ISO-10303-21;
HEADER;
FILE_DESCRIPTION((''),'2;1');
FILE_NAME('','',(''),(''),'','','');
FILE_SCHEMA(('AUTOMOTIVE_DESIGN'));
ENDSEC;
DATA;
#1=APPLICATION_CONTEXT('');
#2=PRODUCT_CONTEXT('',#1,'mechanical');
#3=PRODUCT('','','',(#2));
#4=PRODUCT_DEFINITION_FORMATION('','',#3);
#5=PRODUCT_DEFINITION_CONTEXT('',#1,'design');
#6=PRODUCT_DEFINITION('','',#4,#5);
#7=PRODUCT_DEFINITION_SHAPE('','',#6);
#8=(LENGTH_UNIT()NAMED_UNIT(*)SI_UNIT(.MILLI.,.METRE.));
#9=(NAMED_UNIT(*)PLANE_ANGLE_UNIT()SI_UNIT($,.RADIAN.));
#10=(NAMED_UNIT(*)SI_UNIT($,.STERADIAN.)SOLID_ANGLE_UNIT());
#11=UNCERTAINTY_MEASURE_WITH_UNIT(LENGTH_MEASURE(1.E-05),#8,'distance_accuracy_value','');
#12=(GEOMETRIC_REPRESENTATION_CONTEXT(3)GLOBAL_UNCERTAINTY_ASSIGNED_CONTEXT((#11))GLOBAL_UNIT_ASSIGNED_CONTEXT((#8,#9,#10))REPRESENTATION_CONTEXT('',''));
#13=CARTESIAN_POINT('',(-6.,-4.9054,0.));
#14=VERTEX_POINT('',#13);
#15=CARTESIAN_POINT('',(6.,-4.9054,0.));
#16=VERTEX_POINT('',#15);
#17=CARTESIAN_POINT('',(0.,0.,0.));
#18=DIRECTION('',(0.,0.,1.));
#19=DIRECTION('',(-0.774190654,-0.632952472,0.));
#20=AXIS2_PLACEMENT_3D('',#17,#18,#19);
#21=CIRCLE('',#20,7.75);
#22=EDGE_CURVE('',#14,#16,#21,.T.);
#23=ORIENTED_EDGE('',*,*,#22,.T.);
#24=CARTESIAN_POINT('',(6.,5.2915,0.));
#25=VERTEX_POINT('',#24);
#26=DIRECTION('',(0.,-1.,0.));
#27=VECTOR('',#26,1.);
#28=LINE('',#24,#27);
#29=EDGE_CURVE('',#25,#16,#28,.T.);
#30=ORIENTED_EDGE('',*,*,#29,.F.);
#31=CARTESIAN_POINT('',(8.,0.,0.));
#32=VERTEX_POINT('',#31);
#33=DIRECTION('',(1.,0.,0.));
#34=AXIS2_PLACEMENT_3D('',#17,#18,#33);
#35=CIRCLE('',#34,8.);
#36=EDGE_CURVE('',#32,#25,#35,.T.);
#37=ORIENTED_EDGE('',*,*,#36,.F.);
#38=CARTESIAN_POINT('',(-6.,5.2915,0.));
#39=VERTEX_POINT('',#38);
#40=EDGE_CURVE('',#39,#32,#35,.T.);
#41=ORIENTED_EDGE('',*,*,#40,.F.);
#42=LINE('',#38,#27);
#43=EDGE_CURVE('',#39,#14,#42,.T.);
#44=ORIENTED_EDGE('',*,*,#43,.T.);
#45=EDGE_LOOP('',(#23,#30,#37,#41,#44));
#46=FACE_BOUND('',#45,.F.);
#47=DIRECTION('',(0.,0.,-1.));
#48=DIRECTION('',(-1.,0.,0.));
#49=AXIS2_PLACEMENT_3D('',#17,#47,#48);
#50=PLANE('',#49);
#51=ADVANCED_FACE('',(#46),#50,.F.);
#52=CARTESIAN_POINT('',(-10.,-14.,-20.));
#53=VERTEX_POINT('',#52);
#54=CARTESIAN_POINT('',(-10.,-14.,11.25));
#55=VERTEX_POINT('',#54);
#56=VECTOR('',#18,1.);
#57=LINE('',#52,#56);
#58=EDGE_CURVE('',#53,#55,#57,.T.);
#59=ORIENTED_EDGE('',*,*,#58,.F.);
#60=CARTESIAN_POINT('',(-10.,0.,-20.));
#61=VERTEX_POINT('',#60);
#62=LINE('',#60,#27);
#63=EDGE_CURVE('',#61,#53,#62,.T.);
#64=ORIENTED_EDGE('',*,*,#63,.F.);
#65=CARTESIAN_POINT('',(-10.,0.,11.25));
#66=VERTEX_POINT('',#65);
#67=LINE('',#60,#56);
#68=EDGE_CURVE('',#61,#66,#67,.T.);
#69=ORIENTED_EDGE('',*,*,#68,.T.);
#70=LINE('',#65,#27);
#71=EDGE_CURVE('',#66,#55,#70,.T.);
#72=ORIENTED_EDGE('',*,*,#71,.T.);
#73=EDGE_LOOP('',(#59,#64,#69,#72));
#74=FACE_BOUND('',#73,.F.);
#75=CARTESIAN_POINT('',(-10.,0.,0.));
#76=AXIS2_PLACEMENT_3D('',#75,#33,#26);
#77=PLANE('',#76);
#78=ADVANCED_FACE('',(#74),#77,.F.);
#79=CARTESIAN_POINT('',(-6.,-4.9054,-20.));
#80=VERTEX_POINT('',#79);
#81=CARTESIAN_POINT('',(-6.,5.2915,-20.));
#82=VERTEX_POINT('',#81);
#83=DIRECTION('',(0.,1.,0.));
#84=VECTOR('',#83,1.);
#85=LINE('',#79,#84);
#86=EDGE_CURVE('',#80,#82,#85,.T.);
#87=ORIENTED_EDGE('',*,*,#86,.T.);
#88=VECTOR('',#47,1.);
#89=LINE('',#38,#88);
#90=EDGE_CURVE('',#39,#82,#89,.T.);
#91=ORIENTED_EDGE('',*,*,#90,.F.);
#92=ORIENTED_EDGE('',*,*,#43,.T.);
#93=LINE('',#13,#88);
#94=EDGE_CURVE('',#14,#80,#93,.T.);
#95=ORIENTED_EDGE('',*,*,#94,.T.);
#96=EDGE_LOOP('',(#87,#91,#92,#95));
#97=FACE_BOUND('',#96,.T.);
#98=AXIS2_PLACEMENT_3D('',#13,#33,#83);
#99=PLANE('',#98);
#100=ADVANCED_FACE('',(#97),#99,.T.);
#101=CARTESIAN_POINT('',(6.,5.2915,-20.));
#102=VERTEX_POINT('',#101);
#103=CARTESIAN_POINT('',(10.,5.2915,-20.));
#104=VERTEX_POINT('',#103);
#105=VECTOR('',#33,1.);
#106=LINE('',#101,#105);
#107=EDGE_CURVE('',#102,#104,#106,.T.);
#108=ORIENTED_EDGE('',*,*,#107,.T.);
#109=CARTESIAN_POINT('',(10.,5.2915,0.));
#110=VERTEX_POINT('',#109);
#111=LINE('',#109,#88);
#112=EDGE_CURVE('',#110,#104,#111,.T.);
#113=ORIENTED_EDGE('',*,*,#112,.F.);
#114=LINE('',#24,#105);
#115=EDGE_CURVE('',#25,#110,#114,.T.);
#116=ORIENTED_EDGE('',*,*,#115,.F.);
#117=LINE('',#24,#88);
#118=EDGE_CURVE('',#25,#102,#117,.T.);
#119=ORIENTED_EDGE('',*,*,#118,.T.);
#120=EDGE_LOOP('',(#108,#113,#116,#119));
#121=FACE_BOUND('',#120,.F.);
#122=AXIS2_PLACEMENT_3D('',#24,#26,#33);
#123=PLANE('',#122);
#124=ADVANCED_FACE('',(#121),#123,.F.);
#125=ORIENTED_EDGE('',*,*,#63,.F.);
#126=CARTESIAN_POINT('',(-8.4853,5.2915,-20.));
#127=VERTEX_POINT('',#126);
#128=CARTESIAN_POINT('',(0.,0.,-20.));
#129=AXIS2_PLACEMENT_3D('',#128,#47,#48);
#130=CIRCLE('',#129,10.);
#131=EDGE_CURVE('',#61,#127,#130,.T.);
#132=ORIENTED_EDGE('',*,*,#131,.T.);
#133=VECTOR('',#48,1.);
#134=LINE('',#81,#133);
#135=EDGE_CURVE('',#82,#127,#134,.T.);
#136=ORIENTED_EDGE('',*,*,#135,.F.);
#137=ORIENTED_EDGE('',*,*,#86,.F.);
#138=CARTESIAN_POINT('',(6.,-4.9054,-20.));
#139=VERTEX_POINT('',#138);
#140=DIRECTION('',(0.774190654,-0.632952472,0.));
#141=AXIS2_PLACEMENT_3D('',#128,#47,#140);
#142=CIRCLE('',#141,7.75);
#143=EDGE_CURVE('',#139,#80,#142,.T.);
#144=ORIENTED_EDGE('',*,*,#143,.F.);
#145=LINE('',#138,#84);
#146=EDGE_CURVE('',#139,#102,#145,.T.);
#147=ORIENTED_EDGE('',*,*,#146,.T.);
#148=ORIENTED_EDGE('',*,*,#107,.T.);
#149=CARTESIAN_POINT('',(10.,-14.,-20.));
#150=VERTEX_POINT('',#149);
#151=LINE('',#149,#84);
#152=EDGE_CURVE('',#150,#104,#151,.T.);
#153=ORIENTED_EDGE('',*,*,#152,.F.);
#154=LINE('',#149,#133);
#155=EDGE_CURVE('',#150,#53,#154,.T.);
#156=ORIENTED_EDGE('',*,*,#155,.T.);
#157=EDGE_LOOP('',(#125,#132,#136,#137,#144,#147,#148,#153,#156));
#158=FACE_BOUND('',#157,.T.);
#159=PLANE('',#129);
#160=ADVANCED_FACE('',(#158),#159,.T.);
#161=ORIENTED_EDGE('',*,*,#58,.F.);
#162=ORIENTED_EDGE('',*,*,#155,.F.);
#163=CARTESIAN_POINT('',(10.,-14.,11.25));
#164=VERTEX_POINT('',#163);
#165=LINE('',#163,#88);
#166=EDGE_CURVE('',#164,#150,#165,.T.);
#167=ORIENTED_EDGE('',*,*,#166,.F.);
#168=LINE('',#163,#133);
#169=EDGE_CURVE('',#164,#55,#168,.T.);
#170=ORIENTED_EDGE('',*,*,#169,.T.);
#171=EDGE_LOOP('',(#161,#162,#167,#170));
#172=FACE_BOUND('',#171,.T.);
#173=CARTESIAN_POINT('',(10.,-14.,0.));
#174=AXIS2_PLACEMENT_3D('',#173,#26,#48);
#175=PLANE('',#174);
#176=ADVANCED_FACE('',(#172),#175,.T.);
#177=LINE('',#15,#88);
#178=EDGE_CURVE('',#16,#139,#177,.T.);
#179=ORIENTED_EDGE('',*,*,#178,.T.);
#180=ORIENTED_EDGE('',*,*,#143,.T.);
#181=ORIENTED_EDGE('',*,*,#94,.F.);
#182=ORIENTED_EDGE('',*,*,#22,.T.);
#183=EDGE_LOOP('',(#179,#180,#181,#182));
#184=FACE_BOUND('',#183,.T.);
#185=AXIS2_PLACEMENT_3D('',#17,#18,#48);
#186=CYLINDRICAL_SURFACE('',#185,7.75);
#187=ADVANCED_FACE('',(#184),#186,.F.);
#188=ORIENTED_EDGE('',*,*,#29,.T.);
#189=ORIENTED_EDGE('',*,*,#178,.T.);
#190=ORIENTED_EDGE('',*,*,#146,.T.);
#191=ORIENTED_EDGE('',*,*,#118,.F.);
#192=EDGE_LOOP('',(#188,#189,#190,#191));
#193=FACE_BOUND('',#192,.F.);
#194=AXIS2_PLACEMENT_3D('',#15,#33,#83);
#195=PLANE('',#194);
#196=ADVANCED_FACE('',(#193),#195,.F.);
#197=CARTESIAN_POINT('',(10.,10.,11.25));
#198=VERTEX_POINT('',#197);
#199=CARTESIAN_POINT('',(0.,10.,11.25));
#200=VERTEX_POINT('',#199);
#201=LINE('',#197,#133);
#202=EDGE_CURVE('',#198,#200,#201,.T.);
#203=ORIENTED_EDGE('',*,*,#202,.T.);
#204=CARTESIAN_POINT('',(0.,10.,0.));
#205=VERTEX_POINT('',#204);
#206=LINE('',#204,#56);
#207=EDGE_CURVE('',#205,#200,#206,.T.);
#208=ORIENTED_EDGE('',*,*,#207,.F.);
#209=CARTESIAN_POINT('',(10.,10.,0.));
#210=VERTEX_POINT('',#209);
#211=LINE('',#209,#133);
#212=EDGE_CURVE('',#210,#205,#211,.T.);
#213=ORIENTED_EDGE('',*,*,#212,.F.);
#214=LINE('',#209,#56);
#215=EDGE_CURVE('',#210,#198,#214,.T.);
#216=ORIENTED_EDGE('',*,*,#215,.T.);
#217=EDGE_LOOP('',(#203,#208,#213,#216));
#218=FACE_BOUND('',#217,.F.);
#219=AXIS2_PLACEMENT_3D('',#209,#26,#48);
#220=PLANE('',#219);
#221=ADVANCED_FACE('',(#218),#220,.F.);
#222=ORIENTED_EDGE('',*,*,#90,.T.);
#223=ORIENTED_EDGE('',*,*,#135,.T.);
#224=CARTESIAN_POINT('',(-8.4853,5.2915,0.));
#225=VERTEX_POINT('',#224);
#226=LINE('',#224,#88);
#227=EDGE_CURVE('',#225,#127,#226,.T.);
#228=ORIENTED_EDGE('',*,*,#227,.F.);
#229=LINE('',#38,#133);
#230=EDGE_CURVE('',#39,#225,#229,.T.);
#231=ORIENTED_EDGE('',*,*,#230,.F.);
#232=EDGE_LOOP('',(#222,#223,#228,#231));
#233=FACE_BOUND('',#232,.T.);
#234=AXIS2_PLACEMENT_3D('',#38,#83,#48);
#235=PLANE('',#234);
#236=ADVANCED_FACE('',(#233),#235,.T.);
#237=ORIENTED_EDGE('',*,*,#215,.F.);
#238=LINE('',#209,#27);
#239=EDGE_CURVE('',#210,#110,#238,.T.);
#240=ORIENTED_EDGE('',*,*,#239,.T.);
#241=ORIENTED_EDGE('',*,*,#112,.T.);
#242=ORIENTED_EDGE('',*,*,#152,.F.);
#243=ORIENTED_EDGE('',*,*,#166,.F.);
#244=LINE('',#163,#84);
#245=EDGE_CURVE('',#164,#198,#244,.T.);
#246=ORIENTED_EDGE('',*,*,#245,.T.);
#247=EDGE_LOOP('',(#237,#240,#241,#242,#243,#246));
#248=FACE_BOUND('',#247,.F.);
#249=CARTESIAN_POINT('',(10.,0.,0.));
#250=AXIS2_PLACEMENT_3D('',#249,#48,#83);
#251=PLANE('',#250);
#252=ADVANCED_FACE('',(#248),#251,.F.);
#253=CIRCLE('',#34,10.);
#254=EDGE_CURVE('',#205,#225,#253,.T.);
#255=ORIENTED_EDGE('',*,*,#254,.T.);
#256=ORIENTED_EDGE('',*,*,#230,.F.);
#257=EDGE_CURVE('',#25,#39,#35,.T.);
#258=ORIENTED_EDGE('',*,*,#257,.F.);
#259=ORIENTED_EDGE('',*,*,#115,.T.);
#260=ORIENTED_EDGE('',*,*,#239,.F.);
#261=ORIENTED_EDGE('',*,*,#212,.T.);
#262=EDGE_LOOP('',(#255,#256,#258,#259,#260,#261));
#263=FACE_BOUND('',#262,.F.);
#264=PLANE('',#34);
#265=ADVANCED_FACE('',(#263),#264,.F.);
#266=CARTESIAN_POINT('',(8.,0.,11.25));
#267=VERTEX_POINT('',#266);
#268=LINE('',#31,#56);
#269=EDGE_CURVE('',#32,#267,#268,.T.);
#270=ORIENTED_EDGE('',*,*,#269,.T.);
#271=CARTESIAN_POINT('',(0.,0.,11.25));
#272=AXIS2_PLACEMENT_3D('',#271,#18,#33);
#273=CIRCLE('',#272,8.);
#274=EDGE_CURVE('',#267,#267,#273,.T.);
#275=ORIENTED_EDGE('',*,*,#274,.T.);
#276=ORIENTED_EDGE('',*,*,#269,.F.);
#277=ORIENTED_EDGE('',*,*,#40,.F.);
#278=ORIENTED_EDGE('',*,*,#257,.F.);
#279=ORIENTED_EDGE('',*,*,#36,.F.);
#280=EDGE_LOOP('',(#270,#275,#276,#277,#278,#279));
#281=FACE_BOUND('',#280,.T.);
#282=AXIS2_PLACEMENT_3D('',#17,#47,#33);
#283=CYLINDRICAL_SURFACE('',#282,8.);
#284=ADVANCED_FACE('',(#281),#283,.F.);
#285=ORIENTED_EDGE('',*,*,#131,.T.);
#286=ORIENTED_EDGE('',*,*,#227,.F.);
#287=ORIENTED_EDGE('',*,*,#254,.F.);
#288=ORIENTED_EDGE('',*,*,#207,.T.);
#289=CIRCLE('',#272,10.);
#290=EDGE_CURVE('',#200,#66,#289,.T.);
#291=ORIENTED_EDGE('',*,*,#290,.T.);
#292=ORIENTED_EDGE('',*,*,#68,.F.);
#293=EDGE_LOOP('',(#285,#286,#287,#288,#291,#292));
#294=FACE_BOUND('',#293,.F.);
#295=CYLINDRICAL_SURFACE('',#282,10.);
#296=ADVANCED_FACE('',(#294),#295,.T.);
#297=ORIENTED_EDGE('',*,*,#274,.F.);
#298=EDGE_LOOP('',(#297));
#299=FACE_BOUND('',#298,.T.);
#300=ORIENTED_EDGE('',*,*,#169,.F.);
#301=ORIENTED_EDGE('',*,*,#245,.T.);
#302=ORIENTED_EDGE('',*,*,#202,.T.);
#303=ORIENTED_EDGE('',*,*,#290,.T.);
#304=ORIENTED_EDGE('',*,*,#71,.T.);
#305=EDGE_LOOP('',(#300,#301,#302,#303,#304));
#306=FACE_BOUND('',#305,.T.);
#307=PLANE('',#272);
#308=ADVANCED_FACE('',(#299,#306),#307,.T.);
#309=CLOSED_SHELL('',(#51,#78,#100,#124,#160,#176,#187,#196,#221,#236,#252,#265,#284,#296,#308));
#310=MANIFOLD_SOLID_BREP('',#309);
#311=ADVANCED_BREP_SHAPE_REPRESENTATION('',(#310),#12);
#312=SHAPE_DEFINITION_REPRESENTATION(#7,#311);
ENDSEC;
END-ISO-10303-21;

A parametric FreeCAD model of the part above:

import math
import FreeCAD as App
import Part
import Sketcher

V = App.Vector
Q = App.Units.Quantity

doc = App.newDocument("Part")
body = doc.addObject("PartDesign::Body", "Body")

sketch1 = body.newObject("Sketcher::SketchObject", "Sketch")
sketch1.AttachmentSupport = (doc.getObject("XY_Plane"), [""])
sketch1.MapMode = "FlatFace"
sketch1.addGeometry([
    Part.ArcOfCircle(Part.Circle(V(0, 0, 0), V(0, 0, 1), 10), math.radians(90), math.radians(180)),
    Part.LineSegment(V(-10, 0, 0), V(-10, -14, 0)),
    Part.LineSegment(V(-10, -14, 0), V(10, -14, 0)),
    Part.LineSegment(V(10, -14, 0), V(10, 10, 0)),
    Part.LineSegment(V(10, 10, 0), V(0, 10, 0)),
    Part.Circle(V(0, 0, 0), V(0, 0, 1), 8),
], False)
sketch1.addConstraint([
    Sketcher.Constraint("Tangent", 0, 2, 1, 1),
    Sketcher.Constraint("Coincident", 1, 2, 2, 1),
    Sketcher.Constraint("Coincident", 2, 2, 3, 1),
    Sketcher.Constraint("Coincident", 3, 2, 4, 1),
    Sketcher.Constraint("Tangent", 4, 2, 0, 1),
    Sketcher.Constraint("Vertical", 1),
    Sketcher.Constraint("Horizontal", 2),
    Sketcher.Constraint("Vertical", 3),
    Sketcher.Constraint("Horizontal", 4),
    Sketcher.Constraint("Coincident", 0, 3, -1, 1),
    Sketcher.Constraint("Coincident", 5, 3, -1, 1),
    Sketcher.Constraint("Diameter", 5, Q("16 mm")),
    Sketcher.Constraint("Radius", 0, Q("10 mm")),
    Sketcher.Constraint("DistanceX", 2, 1, 2, 2, Q("20 mm")),
    Sketcher.Constraint("DistanceY", 1, 2, 1, 1, Q("14 mm")),
])
pad1 = body.newObject("PartDesign::Pad", "Pad")
pad1.Profile = sketch1
pad1.Length = 11.25

sketch2 = body.newObject("Sketcher::SketchObject", "Sketch001")
sketch2.AttachmentSupport = (doc.getObject("XY_Plane"), [""])
sketch2.MapMode = "FlatFace"
sketch2.addGeometry([
    Part.ArcOfCircle(Part.Circle(V(0, 0, 0), V(0, 0, 1), 7.8), math.radians(-141), math.radians(-39)),
    Part.LineSegment(V(6, -4.9, 0), V(6, 5.3, 0)),
    Part.LineSegment(V(6, 5.3, 0), V(10, 5.3, 0)),
    Part.LineSegment(V(10, 5.3, 0), V(10, -14, 0)),
    Part.LineSegment(V(10, -14, 0), V(-10, -14, 0)),
    Part.LineSegment(V(-10, -14, 0), V(-10, 0, 0)),
    Part.ArcOfCircle(Part.Circle(V(0, 0, 0), V(0, 0, 1), 10), math.radians(148), math.radians(180)),
    Part.LineSegment(V(-8.5, 5.3, 0), V(-6, 5.3, 0)),
    Part.LineSegment(V(-6, 5.3, 0), V(-6, -4.9, 0)),
], False)
sketch2.addConstraint([
    Sketcher.Constraint("Coincident", 0, 2, 1, 1),
    Sketcher.Constraint("Coincident", 1, 2, 2, 1),
    Sketcher.Constraint("Coincident", 2, 2, 3, 1),
    Sketcher.Constraint("Coincident", 3, 2, 4, 1),
    Sketcher.Constraint("Coincident", 4, 2, 5, 1),
    Sketcher.Constraint("Tangent", 5, 2, 6, 2),
    Sketcher.Constraint("Coincident", 6, 1, 7, 1),
    Sketcher.Constraint("Coincident", 7, 2, 8, 1),
    Sketcher.Constraint("Coincident", 8, 2, 0, 1),
    Sketcher.Constraint("Vertical", 1),
    Sketcher.Constraint("Horizontal", 2),
    Sketcher.Constraint("Vertical", 3),
    Sketcher.Constraint("Horizontal", 4),
    Sketcher.Constraint("Vertical", 5),
    Sketcher.Constraint("Horizontal", 7),
    Sketcher.Constraint("Vertical", 8),
    Sketcher.Constraint("Coincident", 0, 3, -1, 1),
    Sketcher.Constraint("Coincident", 6, 3, -1, 1),
    Sketcher.Constraint("Symmetric", 1, 2, 7, 2, -2),
    Sketcher.Constraint("Radius", 0, Q("7.75 mm")),
    Sketcher.Constraint("Radius", 6, Q("10 mm")),
    Sketcher.Constraint("DistanceX", 7, 2, 1, 2, Q("12 mm")),
    Sketcher.Constraint("DistanceX", 2, 1, 2, 2, Q("4 mm")),
    Sketcher.Constraint("DistanceY", 5, 1, 5, 2, Q("14 mm")),
    Sketcher.Constraint("DistanceY", 1, 1, 1, 2, Q("10.197 mm")),
])
pad2 = body.newObject("PartDesign::Pad", "Pad001")
pad2.Profile = sketch2
pad2.Length = 20
pad2.Reversed = True

doc.recompute()
